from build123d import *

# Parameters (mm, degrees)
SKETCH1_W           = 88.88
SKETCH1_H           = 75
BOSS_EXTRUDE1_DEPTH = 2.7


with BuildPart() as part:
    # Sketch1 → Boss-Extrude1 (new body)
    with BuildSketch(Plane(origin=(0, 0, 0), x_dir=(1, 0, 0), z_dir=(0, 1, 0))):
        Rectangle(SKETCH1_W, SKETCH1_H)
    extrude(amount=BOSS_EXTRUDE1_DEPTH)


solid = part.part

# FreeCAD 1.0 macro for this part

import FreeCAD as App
import Part
import Sketcher


def add_polygon(sketch, points):
    """Adds a closed chain of lines whose ends are joined by coincident constraints."""
    first, n = sketch.GeometryCount, len(points)
    for a, b in zip(points, points[1:] + points[:1]):
        sketch.addGeometry(Part.LineSegment(App.Vector(*a, 0), App.Vector(*b, 0)), False)
    for i in range(n):
        sketch.addConstraint(Sketcher.Constraint("Coincident", first + i, 2, first + (i + 1) % n, 1))

doc = App.newDocument("Part")
params = doc.addObject("Spreadsheet::Sheet", "Params")
for row, (alias, value) in enumerate([
    ("sketch1_height", "75 mm"),
    ("sketch1_width", "88.88 mm"),
    ("pad1_length", "2.7 mm"),
], start=1):
    params.set(f"A{row}", alias)
    params.set(f"B{row}", "=" + value)
    params.setAlias(f"B{row}", alias)

body = doc.addObject("PartDesign::Body", "Body")

# Sketch on XZ plane
sketch1 = body.newObject("Sketcher::SketchObject", "Sketch")
sketch1.AttachmentSupport = (doc.getObject("XZ_Plane"), [""])
sketch1.MapMode = "FlatFace"
add_polygon(sketch1, [(-44, -38), (-44, 38), (44, 38), (44, -38)])  # lines 0-3
sketch1.addConstraint([
    Sketcher.Constraint("Vertical", 0),
    Sketcher.Constraint("Horizontal", 1),
    Sketcher.Constraint("Vertical", 2),
    Sketcher.Constraint("Horizontal", 3),
    Sketcher.Constraint("Symmetric", 0, 2, 2, 2, -1, 1),
    Sketcher.Constraint("DistanceY", 0, 1, 0, 2, 75.0),
    Sketcher.Constraint("DistanceX", 1, 1, 1, 2, 88.88),
])
sketch1.setExpression("Constraints[9]", "Params.sketch1_height")
sketch1.setExpression("Constraints[10]", "Params.sketch1_width")
pad1 = body.newObject("PartDesign::Pad", "Pad")
pad1.Profile = sketch1
pad1.setExpression("Length", "Params.pad1_length")
pad1.Reversed = True

doc.recompute()
